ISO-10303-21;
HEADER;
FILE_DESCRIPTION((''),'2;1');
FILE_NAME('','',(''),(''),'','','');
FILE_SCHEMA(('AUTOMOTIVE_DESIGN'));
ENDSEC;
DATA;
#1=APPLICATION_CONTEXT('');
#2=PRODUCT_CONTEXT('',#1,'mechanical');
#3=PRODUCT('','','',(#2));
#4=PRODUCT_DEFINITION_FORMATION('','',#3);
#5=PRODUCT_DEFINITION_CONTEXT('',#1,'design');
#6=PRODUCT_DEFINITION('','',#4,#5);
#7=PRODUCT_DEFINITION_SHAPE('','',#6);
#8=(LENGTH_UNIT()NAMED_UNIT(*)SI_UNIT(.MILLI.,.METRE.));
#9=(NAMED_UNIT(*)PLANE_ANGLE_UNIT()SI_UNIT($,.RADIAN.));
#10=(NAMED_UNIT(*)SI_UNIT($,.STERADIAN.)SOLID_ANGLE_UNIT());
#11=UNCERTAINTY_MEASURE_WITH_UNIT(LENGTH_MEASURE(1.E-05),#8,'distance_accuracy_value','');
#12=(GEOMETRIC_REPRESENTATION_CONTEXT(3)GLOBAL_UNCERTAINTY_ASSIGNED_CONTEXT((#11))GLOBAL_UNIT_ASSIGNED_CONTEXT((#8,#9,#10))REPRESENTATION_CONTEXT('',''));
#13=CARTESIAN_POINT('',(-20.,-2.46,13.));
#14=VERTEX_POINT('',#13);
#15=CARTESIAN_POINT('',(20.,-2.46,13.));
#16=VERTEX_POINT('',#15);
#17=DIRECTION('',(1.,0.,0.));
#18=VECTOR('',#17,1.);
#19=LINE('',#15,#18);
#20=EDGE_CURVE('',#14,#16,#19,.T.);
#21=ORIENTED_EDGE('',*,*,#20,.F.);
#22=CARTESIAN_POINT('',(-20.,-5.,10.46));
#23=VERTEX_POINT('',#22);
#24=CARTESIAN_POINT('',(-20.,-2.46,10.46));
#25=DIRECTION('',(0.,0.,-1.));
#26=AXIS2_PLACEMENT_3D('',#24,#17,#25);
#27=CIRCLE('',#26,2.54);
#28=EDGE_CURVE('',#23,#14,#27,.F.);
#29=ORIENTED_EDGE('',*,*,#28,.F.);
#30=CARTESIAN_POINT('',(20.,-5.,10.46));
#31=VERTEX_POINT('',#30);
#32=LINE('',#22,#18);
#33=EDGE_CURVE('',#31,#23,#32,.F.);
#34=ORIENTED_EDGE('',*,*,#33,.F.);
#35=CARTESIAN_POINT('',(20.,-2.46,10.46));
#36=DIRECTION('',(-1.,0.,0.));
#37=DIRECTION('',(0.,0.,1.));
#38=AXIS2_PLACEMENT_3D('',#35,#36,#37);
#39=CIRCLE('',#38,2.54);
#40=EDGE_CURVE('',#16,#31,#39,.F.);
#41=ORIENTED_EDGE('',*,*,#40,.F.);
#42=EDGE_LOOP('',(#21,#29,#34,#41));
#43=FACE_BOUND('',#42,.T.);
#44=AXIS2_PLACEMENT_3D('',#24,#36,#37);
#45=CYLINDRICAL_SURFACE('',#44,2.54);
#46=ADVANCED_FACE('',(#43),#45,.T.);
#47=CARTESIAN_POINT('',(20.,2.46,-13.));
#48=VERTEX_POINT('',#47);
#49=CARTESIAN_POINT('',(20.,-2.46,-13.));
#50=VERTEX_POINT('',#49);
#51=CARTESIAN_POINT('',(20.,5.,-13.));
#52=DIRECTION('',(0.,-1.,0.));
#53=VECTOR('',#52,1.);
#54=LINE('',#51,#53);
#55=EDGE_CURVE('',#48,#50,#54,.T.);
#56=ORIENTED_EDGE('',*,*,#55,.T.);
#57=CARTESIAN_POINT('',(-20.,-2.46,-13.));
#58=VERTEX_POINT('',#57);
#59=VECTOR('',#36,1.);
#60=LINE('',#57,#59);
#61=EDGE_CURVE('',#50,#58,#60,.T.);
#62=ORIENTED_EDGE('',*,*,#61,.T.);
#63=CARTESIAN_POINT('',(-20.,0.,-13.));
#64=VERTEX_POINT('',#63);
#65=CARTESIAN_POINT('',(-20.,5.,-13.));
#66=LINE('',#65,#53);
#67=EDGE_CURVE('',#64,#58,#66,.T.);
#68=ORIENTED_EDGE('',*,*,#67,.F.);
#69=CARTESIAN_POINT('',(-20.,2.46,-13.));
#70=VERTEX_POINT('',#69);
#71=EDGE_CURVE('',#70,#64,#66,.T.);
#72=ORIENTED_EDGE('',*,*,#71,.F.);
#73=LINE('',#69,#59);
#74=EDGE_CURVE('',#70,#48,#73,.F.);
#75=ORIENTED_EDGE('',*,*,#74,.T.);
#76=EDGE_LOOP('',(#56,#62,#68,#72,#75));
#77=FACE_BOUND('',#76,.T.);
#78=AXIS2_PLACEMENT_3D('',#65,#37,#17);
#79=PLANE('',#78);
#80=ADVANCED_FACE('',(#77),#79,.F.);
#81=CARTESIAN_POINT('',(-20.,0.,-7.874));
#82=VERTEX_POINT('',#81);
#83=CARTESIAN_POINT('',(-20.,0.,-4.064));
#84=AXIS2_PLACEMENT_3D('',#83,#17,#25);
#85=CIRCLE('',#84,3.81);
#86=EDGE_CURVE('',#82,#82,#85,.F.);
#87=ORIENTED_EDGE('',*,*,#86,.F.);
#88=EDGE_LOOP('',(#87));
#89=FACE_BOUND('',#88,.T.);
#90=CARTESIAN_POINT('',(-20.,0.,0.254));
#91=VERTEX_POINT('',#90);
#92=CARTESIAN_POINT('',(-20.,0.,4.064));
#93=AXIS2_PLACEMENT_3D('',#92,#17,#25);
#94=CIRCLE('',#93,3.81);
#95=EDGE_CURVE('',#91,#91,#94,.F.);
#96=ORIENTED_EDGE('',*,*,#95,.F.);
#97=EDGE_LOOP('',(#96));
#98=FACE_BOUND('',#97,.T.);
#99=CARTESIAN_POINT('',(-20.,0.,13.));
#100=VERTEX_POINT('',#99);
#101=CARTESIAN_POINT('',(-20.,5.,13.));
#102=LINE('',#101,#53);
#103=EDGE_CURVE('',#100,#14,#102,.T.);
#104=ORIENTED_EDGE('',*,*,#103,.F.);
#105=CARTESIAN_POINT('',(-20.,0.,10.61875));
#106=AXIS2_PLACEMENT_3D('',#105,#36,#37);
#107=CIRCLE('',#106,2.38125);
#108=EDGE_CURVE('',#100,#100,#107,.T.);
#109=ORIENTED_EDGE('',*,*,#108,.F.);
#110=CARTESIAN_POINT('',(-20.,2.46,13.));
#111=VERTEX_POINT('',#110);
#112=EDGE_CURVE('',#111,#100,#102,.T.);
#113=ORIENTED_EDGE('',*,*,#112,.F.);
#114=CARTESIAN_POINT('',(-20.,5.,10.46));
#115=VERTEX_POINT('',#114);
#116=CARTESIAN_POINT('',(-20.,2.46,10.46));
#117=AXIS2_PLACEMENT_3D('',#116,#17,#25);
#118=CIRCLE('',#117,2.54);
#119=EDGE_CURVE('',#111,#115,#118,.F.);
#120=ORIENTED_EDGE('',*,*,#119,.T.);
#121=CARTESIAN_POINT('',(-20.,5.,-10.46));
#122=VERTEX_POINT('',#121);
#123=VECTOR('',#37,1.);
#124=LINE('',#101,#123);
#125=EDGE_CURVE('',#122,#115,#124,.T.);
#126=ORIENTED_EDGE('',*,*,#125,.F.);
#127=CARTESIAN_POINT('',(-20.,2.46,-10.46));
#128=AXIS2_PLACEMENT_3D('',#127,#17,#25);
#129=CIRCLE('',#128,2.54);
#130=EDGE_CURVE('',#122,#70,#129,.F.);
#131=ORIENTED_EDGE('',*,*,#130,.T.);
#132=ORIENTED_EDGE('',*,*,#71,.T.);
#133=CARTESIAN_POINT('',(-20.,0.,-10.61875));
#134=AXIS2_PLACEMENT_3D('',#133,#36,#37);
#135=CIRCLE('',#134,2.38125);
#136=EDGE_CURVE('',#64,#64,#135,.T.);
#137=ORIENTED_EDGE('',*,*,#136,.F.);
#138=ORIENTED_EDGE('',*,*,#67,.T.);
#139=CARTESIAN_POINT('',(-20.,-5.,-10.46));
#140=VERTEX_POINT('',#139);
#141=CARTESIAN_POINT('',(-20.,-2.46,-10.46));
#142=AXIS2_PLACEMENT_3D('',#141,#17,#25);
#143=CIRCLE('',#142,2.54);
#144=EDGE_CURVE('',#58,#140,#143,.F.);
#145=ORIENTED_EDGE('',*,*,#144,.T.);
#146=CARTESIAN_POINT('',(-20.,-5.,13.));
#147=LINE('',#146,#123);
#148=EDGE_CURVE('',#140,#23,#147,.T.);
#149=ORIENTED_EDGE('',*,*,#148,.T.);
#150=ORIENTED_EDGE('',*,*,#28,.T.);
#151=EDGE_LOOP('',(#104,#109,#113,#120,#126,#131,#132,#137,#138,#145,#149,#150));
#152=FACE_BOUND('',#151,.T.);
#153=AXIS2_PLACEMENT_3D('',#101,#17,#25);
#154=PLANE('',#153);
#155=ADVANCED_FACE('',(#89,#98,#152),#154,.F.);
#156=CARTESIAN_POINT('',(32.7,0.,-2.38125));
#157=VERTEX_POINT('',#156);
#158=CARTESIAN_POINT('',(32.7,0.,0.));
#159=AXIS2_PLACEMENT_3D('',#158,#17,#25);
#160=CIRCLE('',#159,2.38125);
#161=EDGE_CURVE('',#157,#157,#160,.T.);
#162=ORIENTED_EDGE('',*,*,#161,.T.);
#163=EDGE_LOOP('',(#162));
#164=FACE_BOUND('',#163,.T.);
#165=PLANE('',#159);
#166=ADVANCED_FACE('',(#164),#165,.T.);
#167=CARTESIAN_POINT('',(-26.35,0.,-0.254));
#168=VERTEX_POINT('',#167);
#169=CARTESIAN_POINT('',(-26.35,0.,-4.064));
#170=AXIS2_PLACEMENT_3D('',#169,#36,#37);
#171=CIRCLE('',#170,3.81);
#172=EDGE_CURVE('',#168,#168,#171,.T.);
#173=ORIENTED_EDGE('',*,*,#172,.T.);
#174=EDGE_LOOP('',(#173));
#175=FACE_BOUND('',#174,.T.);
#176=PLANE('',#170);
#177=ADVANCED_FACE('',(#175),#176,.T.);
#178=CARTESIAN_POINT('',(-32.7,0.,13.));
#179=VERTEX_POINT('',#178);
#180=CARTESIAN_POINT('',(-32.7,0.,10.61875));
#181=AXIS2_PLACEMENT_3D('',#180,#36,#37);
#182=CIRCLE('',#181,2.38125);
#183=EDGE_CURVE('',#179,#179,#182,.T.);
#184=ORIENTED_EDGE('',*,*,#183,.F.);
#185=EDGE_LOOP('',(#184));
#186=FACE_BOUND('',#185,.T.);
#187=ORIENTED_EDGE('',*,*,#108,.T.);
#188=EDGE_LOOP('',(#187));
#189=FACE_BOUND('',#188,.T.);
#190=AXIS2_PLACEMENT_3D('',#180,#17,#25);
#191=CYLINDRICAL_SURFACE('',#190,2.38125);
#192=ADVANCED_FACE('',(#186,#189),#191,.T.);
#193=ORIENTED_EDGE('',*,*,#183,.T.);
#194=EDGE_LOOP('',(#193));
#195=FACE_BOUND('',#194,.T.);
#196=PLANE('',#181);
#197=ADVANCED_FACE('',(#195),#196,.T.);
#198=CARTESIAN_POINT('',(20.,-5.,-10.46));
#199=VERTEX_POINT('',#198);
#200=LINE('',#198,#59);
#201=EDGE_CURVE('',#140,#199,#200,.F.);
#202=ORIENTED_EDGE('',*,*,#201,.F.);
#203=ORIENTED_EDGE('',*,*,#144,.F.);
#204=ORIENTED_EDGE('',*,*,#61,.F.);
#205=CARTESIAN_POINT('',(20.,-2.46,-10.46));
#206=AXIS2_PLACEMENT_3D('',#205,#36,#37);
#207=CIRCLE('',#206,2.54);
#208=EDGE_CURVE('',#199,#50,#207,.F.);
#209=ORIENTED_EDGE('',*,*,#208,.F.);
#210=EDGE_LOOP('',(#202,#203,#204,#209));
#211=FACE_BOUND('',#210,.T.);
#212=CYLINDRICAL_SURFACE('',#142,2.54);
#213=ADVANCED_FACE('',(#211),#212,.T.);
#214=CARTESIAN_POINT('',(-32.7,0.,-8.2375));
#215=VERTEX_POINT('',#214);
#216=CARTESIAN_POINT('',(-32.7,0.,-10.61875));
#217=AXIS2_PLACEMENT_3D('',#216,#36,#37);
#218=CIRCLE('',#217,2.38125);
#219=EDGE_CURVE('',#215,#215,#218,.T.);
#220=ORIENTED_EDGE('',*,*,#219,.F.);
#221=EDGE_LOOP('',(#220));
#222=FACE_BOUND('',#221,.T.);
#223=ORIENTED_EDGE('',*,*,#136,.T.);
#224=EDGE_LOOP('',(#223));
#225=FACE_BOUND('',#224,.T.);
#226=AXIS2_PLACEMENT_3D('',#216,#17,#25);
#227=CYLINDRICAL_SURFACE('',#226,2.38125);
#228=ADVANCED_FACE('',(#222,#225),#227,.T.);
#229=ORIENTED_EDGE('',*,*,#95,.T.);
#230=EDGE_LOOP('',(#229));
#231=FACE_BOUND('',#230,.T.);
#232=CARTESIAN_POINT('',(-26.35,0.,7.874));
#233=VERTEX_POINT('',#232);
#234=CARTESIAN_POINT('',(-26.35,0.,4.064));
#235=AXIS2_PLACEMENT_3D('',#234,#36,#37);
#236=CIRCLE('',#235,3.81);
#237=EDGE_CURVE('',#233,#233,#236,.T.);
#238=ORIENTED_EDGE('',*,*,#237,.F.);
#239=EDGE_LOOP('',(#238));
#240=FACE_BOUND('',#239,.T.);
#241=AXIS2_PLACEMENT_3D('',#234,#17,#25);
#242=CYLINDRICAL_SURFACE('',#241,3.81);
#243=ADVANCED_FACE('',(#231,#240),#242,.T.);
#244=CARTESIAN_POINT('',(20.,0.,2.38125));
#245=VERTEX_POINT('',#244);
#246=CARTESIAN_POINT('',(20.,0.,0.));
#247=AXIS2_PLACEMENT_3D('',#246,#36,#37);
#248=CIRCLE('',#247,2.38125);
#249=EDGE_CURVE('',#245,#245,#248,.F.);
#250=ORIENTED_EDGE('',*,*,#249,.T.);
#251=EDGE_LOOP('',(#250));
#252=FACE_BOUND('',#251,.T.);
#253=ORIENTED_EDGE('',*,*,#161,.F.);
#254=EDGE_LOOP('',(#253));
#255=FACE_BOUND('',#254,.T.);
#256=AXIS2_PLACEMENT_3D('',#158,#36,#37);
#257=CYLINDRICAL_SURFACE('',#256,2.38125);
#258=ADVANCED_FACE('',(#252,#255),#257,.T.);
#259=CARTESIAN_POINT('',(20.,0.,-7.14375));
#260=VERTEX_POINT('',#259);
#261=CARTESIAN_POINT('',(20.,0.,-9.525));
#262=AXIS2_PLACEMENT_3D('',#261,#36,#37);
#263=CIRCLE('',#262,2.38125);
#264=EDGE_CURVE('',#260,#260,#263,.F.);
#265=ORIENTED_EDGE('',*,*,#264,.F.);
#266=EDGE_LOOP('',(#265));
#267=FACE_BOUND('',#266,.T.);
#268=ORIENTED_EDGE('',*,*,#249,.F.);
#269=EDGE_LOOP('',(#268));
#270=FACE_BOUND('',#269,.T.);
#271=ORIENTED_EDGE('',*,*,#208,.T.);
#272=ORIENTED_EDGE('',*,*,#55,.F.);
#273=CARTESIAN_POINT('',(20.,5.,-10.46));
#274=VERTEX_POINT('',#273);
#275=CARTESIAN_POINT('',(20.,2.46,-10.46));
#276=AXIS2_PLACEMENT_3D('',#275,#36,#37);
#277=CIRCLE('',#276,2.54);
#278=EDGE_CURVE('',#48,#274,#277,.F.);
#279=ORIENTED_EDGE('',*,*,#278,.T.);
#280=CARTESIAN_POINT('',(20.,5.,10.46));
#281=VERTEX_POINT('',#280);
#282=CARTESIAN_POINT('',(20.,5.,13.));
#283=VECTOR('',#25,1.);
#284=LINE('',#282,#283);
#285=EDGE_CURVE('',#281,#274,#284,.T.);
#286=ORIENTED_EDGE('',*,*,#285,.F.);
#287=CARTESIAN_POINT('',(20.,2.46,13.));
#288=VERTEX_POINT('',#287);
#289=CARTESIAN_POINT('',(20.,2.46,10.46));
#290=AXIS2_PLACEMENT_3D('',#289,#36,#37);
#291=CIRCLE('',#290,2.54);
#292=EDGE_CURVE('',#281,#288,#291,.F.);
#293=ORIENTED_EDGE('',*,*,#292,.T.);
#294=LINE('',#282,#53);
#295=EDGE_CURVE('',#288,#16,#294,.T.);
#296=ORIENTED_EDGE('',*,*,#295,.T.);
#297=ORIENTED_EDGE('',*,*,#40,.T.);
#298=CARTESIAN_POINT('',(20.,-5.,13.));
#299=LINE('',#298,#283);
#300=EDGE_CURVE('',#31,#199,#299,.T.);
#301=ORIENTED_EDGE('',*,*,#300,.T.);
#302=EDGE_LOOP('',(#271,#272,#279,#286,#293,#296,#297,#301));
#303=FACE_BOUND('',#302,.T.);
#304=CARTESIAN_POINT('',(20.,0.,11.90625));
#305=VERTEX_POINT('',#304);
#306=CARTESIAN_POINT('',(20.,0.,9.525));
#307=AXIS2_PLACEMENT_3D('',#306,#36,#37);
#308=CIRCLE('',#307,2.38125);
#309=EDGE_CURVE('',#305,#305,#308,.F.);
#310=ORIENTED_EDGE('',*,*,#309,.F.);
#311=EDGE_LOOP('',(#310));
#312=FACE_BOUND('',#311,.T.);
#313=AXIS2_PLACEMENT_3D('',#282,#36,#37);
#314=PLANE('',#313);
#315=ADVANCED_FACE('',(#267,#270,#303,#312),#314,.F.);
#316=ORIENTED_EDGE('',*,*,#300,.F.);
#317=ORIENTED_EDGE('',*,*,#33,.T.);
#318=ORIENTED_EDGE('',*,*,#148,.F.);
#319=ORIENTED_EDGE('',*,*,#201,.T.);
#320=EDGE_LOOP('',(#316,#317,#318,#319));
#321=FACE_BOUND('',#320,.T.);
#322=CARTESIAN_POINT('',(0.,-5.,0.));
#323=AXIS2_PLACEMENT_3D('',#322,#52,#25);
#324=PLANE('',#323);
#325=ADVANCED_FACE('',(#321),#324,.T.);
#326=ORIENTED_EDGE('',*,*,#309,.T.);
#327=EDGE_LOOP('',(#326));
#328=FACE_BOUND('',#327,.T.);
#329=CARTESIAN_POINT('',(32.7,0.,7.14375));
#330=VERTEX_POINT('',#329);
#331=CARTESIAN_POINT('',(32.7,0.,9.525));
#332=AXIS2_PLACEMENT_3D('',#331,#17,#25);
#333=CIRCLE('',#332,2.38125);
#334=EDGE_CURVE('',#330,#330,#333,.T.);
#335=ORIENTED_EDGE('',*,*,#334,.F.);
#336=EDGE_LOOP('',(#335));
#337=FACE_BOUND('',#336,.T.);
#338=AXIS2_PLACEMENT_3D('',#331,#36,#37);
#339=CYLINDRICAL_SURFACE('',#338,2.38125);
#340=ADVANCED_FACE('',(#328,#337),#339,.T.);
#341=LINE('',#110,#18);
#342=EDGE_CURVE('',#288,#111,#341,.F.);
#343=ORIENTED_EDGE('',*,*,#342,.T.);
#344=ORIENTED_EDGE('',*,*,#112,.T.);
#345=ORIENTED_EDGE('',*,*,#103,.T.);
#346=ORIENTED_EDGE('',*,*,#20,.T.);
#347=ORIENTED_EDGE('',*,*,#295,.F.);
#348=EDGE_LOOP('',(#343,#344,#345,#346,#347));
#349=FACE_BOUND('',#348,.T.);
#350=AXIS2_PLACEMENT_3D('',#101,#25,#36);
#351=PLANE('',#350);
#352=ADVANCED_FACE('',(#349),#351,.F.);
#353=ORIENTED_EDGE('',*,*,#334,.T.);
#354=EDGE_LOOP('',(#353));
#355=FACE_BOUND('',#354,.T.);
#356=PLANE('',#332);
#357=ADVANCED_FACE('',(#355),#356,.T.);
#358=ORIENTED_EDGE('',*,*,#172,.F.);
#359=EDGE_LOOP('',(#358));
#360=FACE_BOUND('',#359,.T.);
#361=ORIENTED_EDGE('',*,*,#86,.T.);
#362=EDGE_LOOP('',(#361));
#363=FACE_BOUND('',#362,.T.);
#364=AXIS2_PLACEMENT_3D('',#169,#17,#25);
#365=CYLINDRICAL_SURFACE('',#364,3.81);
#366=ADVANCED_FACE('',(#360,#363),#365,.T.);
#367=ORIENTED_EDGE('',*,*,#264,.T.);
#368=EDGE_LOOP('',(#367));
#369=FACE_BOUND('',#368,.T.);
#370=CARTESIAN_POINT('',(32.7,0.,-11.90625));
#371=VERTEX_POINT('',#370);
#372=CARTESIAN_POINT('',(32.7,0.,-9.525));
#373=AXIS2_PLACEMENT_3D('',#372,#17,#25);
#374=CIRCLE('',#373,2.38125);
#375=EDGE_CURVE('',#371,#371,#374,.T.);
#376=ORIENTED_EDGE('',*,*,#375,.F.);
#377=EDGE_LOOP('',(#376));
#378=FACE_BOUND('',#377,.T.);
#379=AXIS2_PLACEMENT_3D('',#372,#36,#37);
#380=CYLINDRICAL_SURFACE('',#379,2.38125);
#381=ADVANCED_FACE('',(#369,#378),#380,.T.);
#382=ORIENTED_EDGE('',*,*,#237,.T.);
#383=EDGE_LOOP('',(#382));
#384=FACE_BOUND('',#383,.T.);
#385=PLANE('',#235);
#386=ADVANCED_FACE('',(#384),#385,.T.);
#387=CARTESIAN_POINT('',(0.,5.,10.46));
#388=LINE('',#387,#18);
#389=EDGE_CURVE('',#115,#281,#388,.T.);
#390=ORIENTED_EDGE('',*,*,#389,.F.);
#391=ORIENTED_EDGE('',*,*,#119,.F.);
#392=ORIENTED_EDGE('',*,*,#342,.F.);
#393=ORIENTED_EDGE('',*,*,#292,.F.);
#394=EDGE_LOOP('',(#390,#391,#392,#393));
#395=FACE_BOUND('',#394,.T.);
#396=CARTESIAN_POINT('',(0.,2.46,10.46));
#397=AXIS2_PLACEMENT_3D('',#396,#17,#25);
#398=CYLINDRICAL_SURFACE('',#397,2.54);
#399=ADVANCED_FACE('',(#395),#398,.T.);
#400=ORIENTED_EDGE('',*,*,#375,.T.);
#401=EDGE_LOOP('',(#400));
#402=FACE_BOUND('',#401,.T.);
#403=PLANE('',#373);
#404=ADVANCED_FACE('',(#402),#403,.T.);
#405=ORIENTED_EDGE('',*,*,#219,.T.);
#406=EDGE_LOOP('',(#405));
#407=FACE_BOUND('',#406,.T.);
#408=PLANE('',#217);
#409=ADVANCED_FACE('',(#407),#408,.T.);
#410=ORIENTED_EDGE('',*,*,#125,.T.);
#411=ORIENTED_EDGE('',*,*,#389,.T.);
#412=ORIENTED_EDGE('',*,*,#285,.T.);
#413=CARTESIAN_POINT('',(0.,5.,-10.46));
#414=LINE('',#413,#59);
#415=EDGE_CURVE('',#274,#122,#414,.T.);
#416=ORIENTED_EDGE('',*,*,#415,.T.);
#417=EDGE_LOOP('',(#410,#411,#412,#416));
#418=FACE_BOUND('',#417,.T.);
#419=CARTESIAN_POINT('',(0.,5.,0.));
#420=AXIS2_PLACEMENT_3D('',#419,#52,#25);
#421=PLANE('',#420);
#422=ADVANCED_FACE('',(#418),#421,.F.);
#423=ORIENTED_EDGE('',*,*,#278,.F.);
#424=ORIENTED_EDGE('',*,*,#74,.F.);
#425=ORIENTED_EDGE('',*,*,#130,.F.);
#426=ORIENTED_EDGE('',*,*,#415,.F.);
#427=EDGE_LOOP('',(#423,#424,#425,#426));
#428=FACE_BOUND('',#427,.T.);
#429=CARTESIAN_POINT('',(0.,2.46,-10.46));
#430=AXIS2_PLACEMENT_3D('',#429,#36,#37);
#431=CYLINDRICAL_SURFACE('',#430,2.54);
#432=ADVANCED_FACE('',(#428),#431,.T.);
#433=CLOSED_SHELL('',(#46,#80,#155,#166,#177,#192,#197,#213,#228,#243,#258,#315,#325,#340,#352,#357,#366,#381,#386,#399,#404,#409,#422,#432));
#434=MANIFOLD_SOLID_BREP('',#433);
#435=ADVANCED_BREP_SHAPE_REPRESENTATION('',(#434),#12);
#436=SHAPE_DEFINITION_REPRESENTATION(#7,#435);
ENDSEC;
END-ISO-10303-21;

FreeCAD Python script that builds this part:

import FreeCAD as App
import Part
import Sketcher

V = App.Vector
Q = App.Units.Quantity


def edges_at(feature, points):
    """Names of the edges that pass closest to the given points."""
    edges = feature.Shape.Edges
    near = lambda p: min(range(len(edges)), key=lambda i: edges[i].distToShape(Part.Vertex(*p))[0])
    return sorted({f"Edge{near(p) + 1}" for p in points})

doc = App.newDocument("Part")
body = doc.addObject("PartDesign::Body", "Body")

# Sketch on XZ plane
sketch1 = doc.addObject("Sketcher::SketchObject", "Sketch")
body.addObject(sketch1)
sketch1.AttachmentSupport = (doc.XZ_Plane, [""])
sketch1.MapMode = "FlatFace"
sketch1.addGeometry(Part.LineSegment(V(-20, -13, 0), V(-20, 13, 0)), False)
sketch1.addGeometry(Part.LineSegment(V(-20, 13, 0), V(20, 13, 0)), False)
sketch1.addGeometry(Part.LineSegment(V(20, 13, 0), V(20, -13, 0)), False)
sketch1.addGeometry(Part.LineSegment(V(20, -13, 0), V(-20, -13, 0)), False)
sketch1.addConstraint(Sketcher.Constraint("Coincident", 0, 2, 1, 1))
sketch1.addConstraint(Sketcher.Constraint("Coincident", 1, 2, 2, 1))
sketch1.addConstraint(Sketcher.Constraint("Coincident", 2, 2, 3, 1))
sketch1.addConstraint(Sketcher.Constraint("Coincident", 3, 2, 0, 1))
sketch1.addConstraint(Sketcher.Constraint("Vertical", 0))
sketch1.addConstraint(Sketcher.Constraint("Horizontal", 1))
sketch1.addConstraint(Sketcher.Constraint("Vertical", 2))
sketch1.addConstraint(Sketcher.Constraint("Horizontal", 3))
sketch1.addConstraint(Sketcher.Constraint("Symmetric", 0, 2, 2, 2, -1, 1))
sketch1.addConstraint(Sketcher.Constraint("DistanceX", 1, 1, 1, 2, 40.0))
sketch1.addConstraint(Sketcher.Constraint("DistanceY", 0, 1, 0, 2, 26.0))
pad1 = doc.addObject("PartDesign::Pad", "Pad")
body.addObject(pad1)
pad1.Profile = sketch1
pad1.Length = 10
pad1.Midplane = True

# Sketch on YZ plane
sketch2 = doc.addObject("Sketcher::SketchObject", "Sketch001")
body.addObject(sketch2)
sketch2.AttachmentSupport = (doc.YZ_Plane, [""])
sketch2.MapMode = "FlatFace"
sketch2.AttachmentOffset = App.Placement(V(0, 0, 20), App.Rotation())
sketch2.addGeometry(Part.Circle(V(0, 0, 0), V(0, 0, 1), 2.4), False)
sketch2.addGeometry(Part.Circle(V(0, 9.5, 0), V(0, 0, 1), 2.4), False)
sketch2.addGeometry(Part.Circle(V(0, -9.5, 0), V(0, 0, 1), 2.4), False)
sketch2.addConstraint(Sketcher.Constraint("Coincident", 0, 3, -1, 1))
sketch2.addConstraint(Sketcher.Constraint("Equal", 0, 1))
sketch2.addConstraint(Sketcher.Constraint("Equal", 1, 2))
sketch2.addConstraint(Sketcher.Constraint("Symmetric", 1, 3, 2, 3, -1, 1))
sketch2.addConstraint(Sketcher.Constraint("PointOnObject", 1, 3, -2))
sketch2.addConstraint(Sketcher.Constraint("Diameter", 0, Q("0.1875 in")))
sketch2.addConstraint(Sketcher.Constraint("DistanceY", 2, 3, 1, 3, Q("0.75 in")))
pad2 = doc.addObject("PartDesign::Pad", "Pad001")
body.addObject(pad2)
pad2.Profile = sketch2
pad2.Length = Q("0.5 in")

# Sketch on YZ plane
sketch3 = doc.addObject("Sketcher::SketchObject", "Sketch002")
body.addObject(sketch3)
sketch3.AttachmentSupport = (doc.YZ_Plane, [""])
sketch3.MapMode = "FlatFace"
sketch3.AttachmentOffset = App.Placement(V(0, 0, -20), App.Rotation())
sketch3.addGeometry(Part.Circle(V(0, -4.1, 0), V(0, 0, 1), 3.8), False)
sketch3.addGeometry(Part.Circle(V(0, 4.1, 0), V(0, 0, 1), 3.8), False)
sketch3.addConstraint(Sketcher.Constraint("Equal", 0, 1))
sketch3.addConstraint(Sketcher.Constraint("Symmetric", 0, 3, 1, 3, -1, 1))
sketch3.addConstraint(Sketcher.Constraint("PointOnObject", 0, 3, -2))
sketch3.addConstraint(Sketcher.Constraint("Diameter", 0, Q("0.3 in")))
sketch3.addConstraint(Sketcher.Constraint("DistanceY", 0, 3, -1, 1, Q("0.16 in")))
pad3 = doc.addObject("PartDesign::Pad", "Pad002")
body.addObject(pad3)
pad3.Profile = sketch3
pad3.Length = Q("0.25 in")
pad3.Reversed = True

# Sketch on YZ plane
sketch4 = doc.addObject("Sketcher::SketchObject", "Sketch003")
body.addObject(sketch4)
sketch4.AttachmentSupport = (doc.YZ_Plane, [""])
sketch4.MapMode = "FlatFace"
sketch4.AttachmentOffset = App.Placement(V(0, 0, -20), App.Rotation())
sketch4.addGeometry(Part.Circle(V(0, -10.6, 0), V(0, 0, 1), 2.4), False)
sketch4.addGeometry(Part.Circle(V(0, 10.6, 0), V(0, 0, 1), 2.4), False)
sketch4.addConstraint(Sketcher.Constraint("Equal", 0, 1))
sketch4.addConstraint(Sketcher.Constraint("Symmetric", 0, 3, 1, 3, -1, 1))
sketch4.addConstraint(Sketcher.Constraint("PointOnObject", 0, 3, -2))
sketch4.addConstraint(Sketcher.Constraint("Diameter", 0, Q("0.1875 in")))
sketch4.addConstraint(Sketcher.Constraint("DistanceY", 0, 3, 1, 3, 21.2375))
pad4 = doc.addObject("PartDesign::Pad", "Pad003")
body.addObject(pad4)
pad4.Profile = sketch4
pad4.Length = Q("0.5 in")
pad4.Reversed = True
doc.recompute()

fillet = doc.addObject("PartDesign::Fillet", "Fillet")
body.addObject(fillet)
fillet.Base = (pad4, edges_at(pad4, [
    (0, 5, 13),
    (0, -5, 13),
    (0, -5, -13),
    (0, 5, -13),
]))
fillet.Radius = Q("0.1 in")

doc.recompute()
